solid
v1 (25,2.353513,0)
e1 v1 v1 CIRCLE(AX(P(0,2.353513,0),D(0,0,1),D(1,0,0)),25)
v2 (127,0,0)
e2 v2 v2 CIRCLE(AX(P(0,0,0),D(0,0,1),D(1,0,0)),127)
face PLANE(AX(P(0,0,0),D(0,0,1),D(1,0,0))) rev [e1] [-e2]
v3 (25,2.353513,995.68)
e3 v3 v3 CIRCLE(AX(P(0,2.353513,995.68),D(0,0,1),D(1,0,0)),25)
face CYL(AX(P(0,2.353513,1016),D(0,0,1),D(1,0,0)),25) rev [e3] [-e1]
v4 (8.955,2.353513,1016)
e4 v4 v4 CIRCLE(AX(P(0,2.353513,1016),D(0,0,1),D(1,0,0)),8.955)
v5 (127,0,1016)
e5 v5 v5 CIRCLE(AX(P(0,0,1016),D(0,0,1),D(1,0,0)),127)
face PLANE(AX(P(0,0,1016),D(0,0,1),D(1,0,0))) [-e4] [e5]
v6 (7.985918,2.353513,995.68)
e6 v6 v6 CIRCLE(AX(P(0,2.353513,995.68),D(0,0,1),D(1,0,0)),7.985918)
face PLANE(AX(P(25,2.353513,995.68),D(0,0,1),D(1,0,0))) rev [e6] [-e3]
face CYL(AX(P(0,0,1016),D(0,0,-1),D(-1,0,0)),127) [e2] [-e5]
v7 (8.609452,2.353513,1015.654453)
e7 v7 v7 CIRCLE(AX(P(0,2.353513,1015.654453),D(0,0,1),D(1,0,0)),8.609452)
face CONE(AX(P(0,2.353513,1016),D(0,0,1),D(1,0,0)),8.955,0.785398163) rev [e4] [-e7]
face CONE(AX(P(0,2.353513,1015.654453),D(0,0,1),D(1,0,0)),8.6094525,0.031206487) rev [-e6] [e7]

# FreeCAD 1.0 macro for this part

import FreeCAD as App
import Part
import Sketcher
Q = App.Units.Quantity

doc = App.newDocument("Part")
body = doc.addObject("PartDesign::Body", "Body")

# Sketch on XY plane
sketch1 = body.newObject("Sketcher::SketchObject", "Sketch")
sketch1.AttachmentSupport = (doc.getObject("XY_Plane"), [""])
sketch1.MapMode = "FlatFace"
sketch1.addGeometry(Part.Circle(App.Vector(0, 0, 0), App.Vector(0, 0, 1), 127), False)
sketch1.addConstraint([
    Sketcher.Constraint("Coincident", 0, 3, -1, 1),
    Sketcher.Constraint("Diameter", 0, Q("10 in")),
])
pad1 = body.newObject("PartDesign::Pad", "Pad")
pad1.Profile = sketch1
pad1.Length = Q("40 in")

# Sketch on YZ plane
sketch2 = body.newObject("Sketcher::SketchObject", "Sketch001")
sketch2.AttachmentSupport = (doc.getObject("YZ_Plane"), [""])
sketch2.MapMode = "FlatFace"
sketch2.addGeometry([
    Part.LineSegment(App.Vector(2.35, 0, 0), App.Vector(2.35, 1016, 0)),  # 0
    Part.LineSegment(App.Vector(2.35, 1016, 0), App.Vector(-6.6, 1016, 0)),  # 1
    Part.LineSegment(App.Vector(-6.6, 1016, 0), App.Vector(-6.26, 1015.65, 0)),  # 2
    Part.LineSegment(App.Vector(-6.26, 1015.65, 0), App.Vector(-5.63, 995.68, 0)),  # 3
    Part.LineSegment(App.Vector(-5.63, 995.68, 0), App.Vector(-22.65, 995.68, 0)),  # 4
    Part.LineSegment(App.Vector(-22.65, 995.68, 0), App.Vector(-22.65, 0, 0)),  # 5
    Part.LineSegment(App.Vector(-22.65, 0, 0), App.Vector(2.35, 0, 0)),  # 6
], False)
sketch2.addGeometry(Part.LineSegment(App.Vector(2.35, 1016, 0), App.Vector(2.35, 0, 0)), True)  # axis
sketch2.addConstraint([
    Sketcher.Constraint("Coincident", 0, 2, 1, 1),
    Sketcher.Constraint("Coincident", 1, 2, 2, 1),
    Sketcher.Constraint("Coincident", 2, 2, 3, 1),
    Sketcher.Constraint("Coincident", 3, 2, 4, 1),
    Sketcher.Constraint("Coincident", 4, 2, 5, 1),
    Sketcher.Constraint("Coincident", 5, 2, 6, 1),
    Sketcher.Constraint("Coincident", 6, 2, 0, 1),
    Sketcher.Constraint("Vertical", 0),
    Sketcher.Constraint("Horizontal", 1),
    Sketcher.Constraint("Horizontal", 4),
    Sketcher.Constraint("Vertical", 5),
    Sketcher.Constraint("Horizontal", 6),
    Sketcher.Constraint("Vertical", 7),
    Sketcher.Constraint("Coincident", 7, 1, 0, 2),
    Sketcher.Constraint("PointOnObject", 5, 2, -1),
    Sketcher.Constraint("PointOnObject", 7, 2, -1),
    Sketcher.Constraint("DistanceY", 0, 1, 0, 2, Q("40 in")),
    Sketcher.Constraint("DistanceY", 5, 2, 5, 1, Q("39.2 in")),
    Sketcher.Constraint("Angle", 2, Q("-45 deg")),
    Sketcher.Constraint("DistanceX", 1, 2, 1, 1, 8.955),
    Sketcher.Constraint("DistanceX", 6, 1, 6, 2, 25.0),
    Sketcher.Constraint("DistanceX", 4, 2, 4, 1, 17.014082),
    Sketcher.Constraint("DistanceX", 2, 2, -1, 1, 6.25594),
    Sketcher.Constraint("Distance", 2, 0.488678),
])
groove = body.newObject("PartDesign::Groove", "Groove")
groove.Profile = sketch2
groove.ReferenceAxis = (sketch2, ["Axis0"])
groove.Angle = 360

doc.recompute()
